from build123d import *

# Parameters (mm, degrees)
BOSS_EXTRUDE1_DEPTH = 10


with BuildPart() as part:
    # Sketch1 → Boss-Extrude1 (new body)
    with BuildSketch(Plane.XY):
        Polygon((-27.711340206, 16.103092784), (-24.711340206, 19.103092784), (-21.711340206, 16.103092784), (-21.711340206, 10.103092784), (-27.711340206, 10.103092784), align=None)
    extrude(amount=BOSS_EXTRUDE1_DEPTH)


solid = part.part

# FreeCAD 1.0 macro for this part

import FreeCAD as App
import Part
import Sketcher
from FreeCAD import Vector

doc = App.newDocument("Part")
body = doc.addObject("PartDesign::Body", "Body")

# Sketch on XY plane
sketch1 = doc.addObject("Sketcher::SketchObject", "Sketch")
body.addObject(sketch1)
sketch1.AttachmentSupport = (doc.XY_Plane, [""])
sketch1.MapMode = "FlatFace"
sketch1.addGeometry(Part.LineSegment(Vector(-24.7, 19.1, 0), Vector(-27.7, 16.1, 0)), False)
sketch1.addGeometry(Part.LineSegment(Vector(-27.7, 16.1, 0), Vector(-27.7, 10.1, 0)), False)
sketch1.addGeometry(Part.LineSegment(Vector(-27.7, 10.1, 0), Vector(-21.7, 10.1, 0)), False)
sketch1.addGeometry(Part.LineSegment(Vector(-21.7, 10.1, 0), Vector(-21.7, 16.1, 0)), False)
sketch1.addGeometry(Part.LineSegment(Vector(-21.7, 16.1, 0), Vector(-24.7, 19.1, 0)), False)
sketch1.addConstraint(Sketcher.Constraint("Coincident", 0, 2, 1, 1))
sketch1.addConstraint(Sketcher.Constraint("Coincident", 1, 2, 2, 1))
sketch1.addConstraint(Sketcher.Constraint("Coincident", 2, 2, 3, 1))
sketch1.addConstraint(Sketcher.Constraint("Coincident", 3, 2, 4, 1))
sketch1.addConstraint(Sketcher.Constraint("Coincident", 4, 2, 0, 1))
sketch1.addConstraint(Sketcher.Constraint("Vertical", 1))
sketch1.addConstraint(Sketcher.Constraint("Horizontal", 2))
sketch1.addConstraint(Sketcher.Constraint("Vertical", 3))
sketch1.addConstraint(Sketcher.Constraint("Perpendicular", 0, 4))
sketch1.addConstraint(Sketcher.Constraint("Horizontal", 0, 2, 3, 2))
sketch1.addConstraint(Sketcher.Constraint("Equal", 2, 1))
sketch1.addConstraint(Sketcher.Constraint("Equal", 0, 4))
sketch1.addConstraint(Sketcher.Constraint("DistanceX", 2, 1, 2, 2, 6.0))
sketch1.addConstraint(Sketcher.Constraint("DistanceX", 0, 2, -1, 1, 27.71134))
sketch1.addConstraint(Sketcher.Constraint("DistanceY", -1, 1, 0, 2, 16.103093))
pad1 = doc.addObject("PartDesign::Pad", "Pad")
body.addObject(pad1)
pad1.Profile = sketch1
pad1.Length = 10

doc.recompute()
